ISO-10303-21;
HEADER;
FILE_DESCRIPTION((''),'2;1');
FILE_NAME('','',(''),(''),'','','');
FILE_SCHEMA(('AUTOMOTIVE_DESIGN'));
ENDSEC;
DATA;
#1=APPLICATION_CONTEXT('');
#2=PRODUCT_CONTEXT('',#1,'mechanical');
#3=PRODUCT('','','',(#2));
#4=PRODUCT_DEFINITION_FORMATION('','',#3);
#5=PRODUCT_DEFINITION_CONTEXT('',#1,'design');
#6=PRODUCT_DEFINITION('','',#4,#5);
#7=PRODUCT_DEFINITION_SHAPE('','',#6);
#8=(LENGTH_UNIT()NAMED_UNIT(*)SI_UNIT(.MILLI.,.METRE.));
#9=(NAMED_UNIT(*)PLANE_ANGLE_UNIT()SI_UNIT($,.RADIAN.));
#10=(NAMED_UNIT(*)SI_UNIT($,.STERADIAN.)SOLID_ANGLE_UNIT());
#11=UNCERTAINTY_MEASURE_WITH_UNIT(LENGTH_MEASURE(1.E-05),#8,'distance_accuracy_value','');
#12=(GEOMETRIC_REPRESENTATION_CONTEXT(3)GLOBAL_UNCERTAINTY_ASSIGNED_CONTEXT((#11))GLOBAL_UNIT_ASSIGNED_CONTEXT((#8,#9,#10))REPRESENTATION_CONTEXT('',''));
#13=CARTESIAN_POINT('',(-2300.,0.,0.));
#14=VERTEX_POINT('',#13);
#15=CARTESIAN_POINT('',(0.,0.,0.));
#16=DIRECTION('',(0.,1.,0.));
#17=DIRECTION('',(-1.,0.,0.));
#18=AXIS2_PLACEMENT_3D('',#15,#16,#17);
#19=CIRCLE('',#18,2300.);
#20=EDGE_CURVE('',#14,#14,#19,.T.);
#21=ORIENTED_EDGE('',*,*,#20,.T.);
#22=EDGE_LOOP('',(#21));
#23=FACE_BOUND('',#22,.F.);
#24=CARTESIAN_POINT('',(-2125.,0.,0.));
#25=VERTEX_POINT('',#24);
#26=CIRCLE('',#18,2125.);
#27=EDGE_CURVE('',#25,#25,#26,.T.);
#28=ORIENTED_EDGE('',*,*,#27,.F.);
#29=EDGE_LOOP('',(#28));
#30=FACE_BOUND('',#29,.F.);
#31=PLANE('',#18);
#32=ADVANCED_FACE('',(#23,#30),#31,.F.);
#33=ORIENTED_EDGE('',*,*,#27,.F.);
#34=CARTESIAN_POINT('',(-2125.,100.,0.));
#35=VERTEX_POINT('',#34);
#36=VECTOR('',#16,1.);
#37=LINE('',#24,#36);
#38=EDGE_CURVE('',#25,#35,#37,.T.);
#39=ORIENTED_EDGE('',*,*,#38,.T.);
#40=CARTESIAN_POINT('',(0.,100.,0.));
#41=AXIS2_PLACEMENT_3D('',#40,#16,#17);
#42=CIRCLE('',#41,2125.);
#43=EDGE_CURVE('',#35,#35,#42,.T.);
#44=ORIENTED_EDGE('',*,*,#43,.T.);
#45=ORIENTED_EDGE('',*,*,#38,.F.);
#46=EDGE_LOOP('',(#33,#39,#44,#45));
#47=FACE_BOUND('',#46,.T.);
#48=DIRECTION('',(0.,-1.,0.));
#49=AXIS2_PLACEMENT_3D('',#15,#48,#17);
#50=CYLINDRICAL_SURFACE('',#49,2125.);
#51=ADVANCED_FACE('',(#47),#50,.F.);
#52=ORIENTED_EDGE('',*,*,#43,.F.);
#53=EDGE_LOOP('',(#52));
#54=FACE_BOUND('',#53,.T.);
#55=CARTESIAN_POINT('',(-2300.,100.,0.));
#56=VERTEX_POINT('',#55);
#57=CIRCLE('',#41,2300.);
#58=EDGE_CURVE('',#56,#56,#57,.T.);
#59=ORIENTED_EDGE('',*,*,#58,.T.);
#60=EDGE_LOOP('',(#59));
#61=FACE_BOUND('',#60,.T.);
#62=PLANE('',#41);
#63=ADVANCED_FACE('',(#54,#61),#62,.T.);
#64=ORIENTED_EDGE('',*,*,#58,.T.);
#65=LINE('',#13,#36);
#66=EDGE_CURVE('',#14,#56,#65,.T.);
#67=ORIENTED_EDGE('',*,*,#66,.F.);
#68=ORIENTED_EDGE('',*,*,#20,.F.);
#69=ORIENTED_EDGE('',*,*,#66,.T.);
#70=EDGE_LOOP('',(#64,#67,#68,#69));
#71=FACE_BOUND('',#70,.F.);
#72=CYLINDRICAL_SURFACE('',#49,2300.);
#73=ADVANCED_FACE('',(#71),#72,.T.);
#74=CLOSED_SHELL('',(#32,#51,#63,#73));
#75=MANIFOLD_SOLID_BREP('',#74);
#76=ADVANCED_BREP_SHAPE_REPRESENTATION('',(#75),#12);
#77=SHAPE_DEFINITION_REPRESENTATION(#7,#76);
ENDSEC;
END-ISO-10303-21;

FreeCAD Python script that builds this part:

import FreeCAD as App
import Part
import Sketcher

V = App.Vector

doc = App.newDocument("Part")
body = doc.addObject("PartDesign::Body", "Body")

sketch1 = body.newObject("Sketcher::SketchObject", "Sketch")
sketch1.AttachmentSupport = (doc.getObject("XZ_Plane"), [""])
sketch1.MapMode = "FlatFace"
sketch1.addGeometry(Part.Circle(V(0, 0, 0), V(0, 0, 1), 2300), False)
sketch1.addGeometry(Part.Circle(V(0, 0, 0), V(0, 0, 1), 2125), False)
sketch1.addConstraint(Sketcher.Constraint("Coincident", 0, 3, -1, 1))
sketch1.addConstraint(Sketcher.Constraint("Coincident", 1, 3, -1, 1))
sketch1.addConstraint(Sketcher.Constraint("Diameter", 0, 4600.0))
sketch1.addConstraint(Sketcher.Constraint("Diameter", 1, 4250.0))
pad1 = body.newObject("PartDesign::Pad", "Pad")
pad1.Profile = sketch1
pad1.Length = 100
pad1.Reversed = True

doc.recompute()
